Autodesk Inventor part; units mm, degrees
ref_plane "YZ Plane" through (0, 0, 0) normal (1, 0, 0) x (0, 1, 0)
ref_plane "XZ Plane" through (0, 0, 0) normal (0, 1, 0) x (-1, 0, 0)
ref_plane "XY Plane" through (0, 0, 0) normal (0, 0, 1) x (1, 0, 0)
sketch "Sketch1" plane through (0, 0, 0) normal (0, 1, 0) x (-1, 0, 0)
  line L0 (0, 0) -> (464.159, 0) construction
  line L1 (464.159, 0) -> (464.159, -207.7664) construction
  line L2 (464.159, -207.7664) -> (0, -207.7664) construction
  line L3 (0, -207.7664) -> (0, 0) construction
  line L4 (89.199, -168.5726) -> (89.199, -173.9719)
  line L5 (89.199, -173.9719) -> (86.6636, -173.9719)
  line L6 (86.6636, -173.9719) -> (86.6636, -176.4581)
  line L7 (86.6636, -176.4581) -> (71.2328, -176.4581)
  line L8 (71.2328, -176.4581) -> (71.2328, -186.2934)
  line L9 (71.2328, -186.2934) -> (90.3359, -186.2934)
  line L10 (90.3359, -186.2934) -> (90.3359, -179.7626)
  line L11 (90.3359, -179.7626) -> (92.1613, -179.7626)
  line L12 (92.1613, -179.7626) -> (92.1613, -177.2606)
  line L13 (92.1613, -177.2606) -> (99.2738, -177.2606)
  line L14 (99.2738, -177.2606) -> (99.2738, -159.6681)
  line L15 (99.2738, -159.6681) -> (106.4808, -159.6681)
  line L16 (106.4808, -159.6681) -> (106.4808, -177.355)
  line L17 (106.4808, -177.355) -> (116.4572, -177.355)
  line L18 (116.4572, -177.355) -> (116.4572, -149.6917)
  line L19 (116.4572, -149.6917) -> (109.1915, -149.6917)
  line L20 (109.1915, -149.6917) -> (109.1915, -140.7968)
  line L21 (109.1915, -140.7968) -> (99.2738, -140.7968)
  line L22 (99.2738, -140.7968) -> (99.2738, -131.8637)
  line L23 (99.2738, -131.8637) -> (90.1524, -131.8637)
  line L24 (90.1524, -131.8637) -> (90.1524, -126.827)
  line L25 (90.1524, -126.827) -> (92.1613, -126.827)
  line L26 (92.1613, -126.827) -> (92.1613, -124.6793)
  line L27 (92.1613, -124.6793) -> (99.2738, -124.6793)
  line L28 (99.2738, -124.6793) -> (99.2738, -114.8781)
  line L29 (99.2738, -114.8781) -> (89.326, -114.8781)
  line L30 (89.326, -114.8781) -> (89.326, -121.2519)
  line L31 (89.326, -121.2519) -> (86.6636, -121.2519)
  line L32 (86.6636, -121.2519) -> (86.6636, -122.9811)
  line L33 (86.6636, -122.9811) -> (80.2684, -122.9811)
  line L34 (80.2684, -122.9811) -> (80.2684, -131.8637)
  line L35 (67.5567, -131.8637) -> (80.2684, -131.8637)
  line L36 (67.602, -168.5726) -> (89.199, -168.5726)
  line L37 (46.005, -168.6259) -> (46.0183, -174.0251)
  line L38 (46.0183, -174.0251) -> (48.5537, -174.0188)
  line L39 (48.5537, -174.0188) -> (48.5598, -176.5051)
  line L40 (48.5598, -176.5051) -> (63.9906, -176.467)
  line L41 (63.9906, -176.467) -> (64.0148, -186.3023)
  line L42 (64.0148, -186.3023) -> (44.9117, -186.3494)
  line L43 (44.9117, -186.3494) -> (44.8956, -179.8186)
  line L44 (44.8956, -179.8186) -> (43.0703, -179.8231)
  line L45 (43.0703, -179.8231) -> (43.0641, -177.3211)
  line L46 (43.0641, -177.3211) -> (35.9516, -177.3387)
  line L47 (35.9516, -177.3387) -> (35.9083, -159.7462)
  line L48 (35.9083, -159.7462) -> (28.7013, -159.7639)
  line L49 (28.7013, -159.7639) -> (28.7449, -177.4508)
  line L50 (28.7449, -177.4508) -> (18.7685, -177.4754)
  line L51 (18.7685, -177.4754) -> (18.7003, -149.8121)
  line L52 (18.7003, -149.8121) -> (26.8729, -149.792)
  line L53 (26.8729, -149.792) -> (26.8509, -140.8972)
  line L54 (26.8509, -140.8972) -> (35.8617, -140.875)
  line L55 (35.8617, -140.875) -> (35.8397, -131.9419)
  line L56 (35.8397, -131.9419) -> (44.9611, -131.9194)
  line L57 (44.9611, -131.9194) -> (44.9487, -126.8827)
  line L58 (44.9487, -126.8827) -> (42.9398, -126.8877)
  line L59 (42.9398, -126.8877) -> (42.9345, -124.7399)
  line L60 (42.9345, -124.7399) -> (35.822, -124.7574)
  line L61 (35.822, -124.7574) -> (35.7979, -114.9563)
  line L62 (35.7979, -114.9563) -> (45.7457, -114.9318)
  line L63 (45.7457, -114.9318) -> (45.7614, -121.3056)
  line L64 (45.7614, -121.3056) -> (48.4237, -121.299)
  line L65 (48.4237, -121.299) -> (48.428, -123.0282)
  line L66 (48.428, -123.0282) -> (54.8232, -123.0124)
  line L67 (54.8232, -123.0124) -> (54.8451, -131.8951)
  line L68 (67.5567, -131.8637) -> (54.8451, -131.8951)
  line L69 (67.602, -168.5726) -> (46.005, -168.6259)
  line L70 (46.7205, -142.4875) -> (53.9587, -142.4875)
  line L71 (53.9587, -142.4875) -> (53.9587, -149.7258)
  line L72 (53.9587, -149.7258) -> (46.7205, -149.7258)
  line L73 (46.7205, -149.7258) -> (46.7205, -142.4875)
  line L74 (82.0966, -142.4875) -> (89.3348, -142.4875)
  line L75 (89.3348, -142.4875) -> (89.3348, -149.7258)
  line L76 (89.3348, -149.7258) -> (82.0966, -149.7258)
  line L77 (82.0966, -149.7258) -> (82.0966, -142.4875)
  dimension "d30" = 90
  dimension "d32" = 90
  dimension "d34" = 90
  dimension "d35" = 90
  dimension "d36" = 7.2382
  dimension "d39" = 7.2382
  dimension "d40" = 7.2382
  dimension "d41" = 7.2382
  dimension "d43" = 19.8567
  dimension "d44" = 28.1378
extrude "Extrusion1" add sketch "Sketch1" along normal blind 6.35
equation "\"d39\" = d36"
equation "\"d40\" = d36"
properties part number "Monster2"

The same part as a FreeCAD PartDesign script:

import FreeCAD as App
import Part
import Sketcher
from FreeCAD import Vector
Q = App.Units.Quantity


def add_polygon(sketch, points):
    """Adds a closed chain of lines whose ends are joined by coincident constraints."""
    first, n = sketch.GeometryCount, len(points)
    for a, b in zip(points, points[1:] + points[:1]):
        sketch.addGeometry(Part.LineSegment(App.Vector(*a, 0), App.Vector(*b, 0)), False)
    for i in range(n):
        sketch.addConstraint(Sketcher.Constraint("Coincident", first + i, 2, first + (i + 1) % n, 1))

doc = App.newDocument("Part")
params = doc.addObject("Spreadsheet::Sheet", "Params")
for row, (alias, value) in enumerate([
    ("pad1_length", "0.25 in"),
], start=1):
    params.set(f"A{row}", alias)
    params.set(f"B{row}", "=" + value)
    params.setAlias(f"B{row}", alias)

body = doc.addObject("PartDesign::Body", "Body")

# Sketch on XZ plane
sketch1 = body.newObject("Sketcher::SketchObject", "Sketch")
sketch1.AttachmentSupport = (doc.getObject("XZ_Plane"), [""])
sketch1.MapMode = "FlatFace"
add_polygon(sketch1, [(-67.6, -168.6), (-89.2, -168.6), (-89.2, -174), (-86.7, -174), (-86.7, -176.5), (-71.2, -176.5), (-71.2, -186.3), (-90.3, -186.3), (-90.3, -179.8), (-92.2, -179.8), (-92.2, -177.3), (-99.3, -177.3), (-99.3, -159.7), (-106.5, -159.7), (-106.5, -177.4), (-116.5, -177.4), (-116.5, -149.7), (-109.2, -149.7), (-109.2, -140.8), (-99.3, -140.8), (-99.3, -131.9), (-90.2, -131.9), (-90.2, -126.8), (-92.2, -126.8), (-92.2, -124.7), (-99.3, -124.7), (-99.3, -114.9), (-89.3, -114.9), (-89.3, -121.3), (-86.7, -121.3), (-86.7, -123), (-80.3, -123), (-80.3, -131.9), (-67.6, -131.9), (-54.8, -131.9), (-54.8, -123), (-48.4, -123), (-48.4, -121.3), (-45.8, -121.3), (-45.7, -114.9), (-35.8, -115), (-35.8, -124.8), (-42.9, -124.7), (-42.9, -126.9), (-44.9, -126.9), (-45, -131.9), (-35.8, -131.9), (-35.9, -140.9), (-26.9, -140.9), (-26.9, -149.8), (-18.7, -149.8), (-18.8, -177.5), (-28.7, -177.5), (-28.7, -159.8), (-35.9, -159.7), (-36, -177.3), (-43.1, -177.3), (-43.1, -179.8), (-44.9, -179.8), (-44.9, -186.3), (-64, -186.3), (-64, -176.5), (-48.6, -176.5), (-48.6, -174), (-46, -174), (-46, -168.6)])  # lines 0-65
add_polygon(sketch1, [(-46.7, -149.7), (-46.7, -142.5), (-54, -142.5), (-54, -149.7)])  # lines 66-69
add_polygon(sketch1, [(-82.1, -149.7), (-82.1, -142.5), (-89.3, -142.5), (-89.3, -149.7)])  # lines 70-73
sketch1.addConstraint(Sketcher.Constraint("Horizontal", 0))
sketch1.addConstraint(Sketcher.Constraint("Vertical", 1))
sketch1.addConstraint(Sketcher.Constraint("Horizontal", 2))
sketch1.addConstraint(Sketcher.Constraint("Vertical", 3))
sketch1.addConstraint(Sketcher.Constraint("Horizontal", 4))
sketch1.addConstraint(Sketcher.Constraint("Vertical", 5))
sketch1.addConstraint(Sketcher.Constraint("Horizontal", 6))
sketch1.addConstraint(Sketcher.Constraint("Vertical", 7))
sketch1.addConstraint(Sketcher.Constraint("Horizontal", 8))
sketch1.addConstraint(Sketcher.Constraint("Vertical", 9))
sketch1.addConstraint(Sketcher.Constraint("Horizontal", 10))
sketch1.addConstraint(Sketcher.Constraint("Vertical", 11))
sketch1.addConstraint(Sketcher.Constraint("Horizontal", 12))
sketch1.addConstraint(Sketcher.Constraint("Vertical", 13))
sketch1.addConstraint(Sketcher.Constraint("Horizontal", 14))
sketch1.addConstraint(Sketcher.Constraint("Vertical", 15))
sketch1.addConstraint(Sketcher.Constraint("Horizontal", 16))
sketch1.addConstraint(Sketcher.Constraint("Vertical", 17))
sketch1.addConstraint(Sketcher.Constraint("Horizontal", 18))
sketch1.addConstraint(Sketcher.Constraint("Vertical", 19))
sketch1.addConstraint(Sketcher.Constraint("Horizontal", 20))
sketch1.addConstraint(Sketcher.Constraint("Vertical", 21))
sketch1.addConstraint(Sketcher.Constraint("Horizontal", 22))
sketch1.addConstraint(Sketcher.Constraint("Vertical", 23))
sketch1.addConstraint(Sketcher.Constraint("Horizontal", 24))
sketch1.addConstraint(Sketcher.Constraint("Vertical", 25))
sketch1.addConstraint(Sketcher.Constraint("Horizontal", 26))
sketch1.addConstraint(Sketcher.Constraint("Vertical", 27))
sketch1.addConstraint(Sketcher.Constraint("Horizontal", 28))
sketch1.addConstraint(Sketcher.Constraint("Vertical", 29))
sketch1.addConstraint(Sketcher.Constraint("Horizontal", 30))
sketch1.addConstraint(Sketcher.Constraint("Vertical", 31))
sketch1.addConstraint(Sketcher.Constraint("Horizontal", 32))
sketch1.addConstraint(Sketcher.Constraint("Vertical", 66))
sketch1.addConstraint(Sketcher.Constraint("Horizontal", 67))
sketch1.addConstraint(Sketcher.Constraint("Vertical", 68))
sketch1.addConstraint(Sketcher.Constraint("Horizontal", 69))
sketch1.addConstraint(Sketcher.Constraint("Vertical", 70))
sketch1.addConstraint(Sketcher.Constraint("Horizontal", 71))
sketch1.addConstraint(Sketcher.Constraint("Vertical", 72))
sketch1.addConstraint(Sketcher.Constraint("Horizontal", 73))
sketch1.addConstraint(Sketcher.Constraint("Perpendicular", 33, 34))
sketch1.addConstraint(Sketcher.Constraint("Perpendicular", 34, 35))
sketch1.addConstraint(Sketcher.Constraint("Perpendicular", 35, 36))
sketch1.addConstraint(Sketcher.Constraint("Perpendicular", 36, 37))
sketch1.addConstraint(Sketcher.Constraint("Perpendicular", 37, 38))
sketch1.addConstraint(Sketcher.Constraint("Perpendicular", 38, 39))
sketch1.addConstraint(Sketcher.Constraint("Perpendicular", 39, 40))
sketch1.addConstraint(Sketcher.Constraint("Perpendicular", 40, 41))
sketch1.addConstraint(Sketcher.Constraint("Perpendicular", 41, 42))
sketch1.addConstraint(Sketcher.Constraint("Perpendicular", 42, 43))
sketch1.addConstraint(Sketcher.Constraint("Perpendicular", 43, 44))
sketch1.addConstraint(Sketcher.Constraint("Perpendicular", 44, 45))
sketch1.addConstraint(Sketcher.Constraint("Perpendicular", 45, 46))
sketch1.addConstraint(Sketcher.Constraint("Perpendicular", 46, 47))
sketch1.addConstraint(Sketcher.Constraint("Perpendicular", 47, 48))
sketch1.addConstraint(Sketcher.Constraint("Perpendicular", 48, 49))
sketch1.addConstraint(Sketcher.Constraint("Perpendicular", 49, 50))
sketch1.addConstraint(Sketcher.Constraint("Perpendicular", 50, 51))
sketch1.addConstraint(Sketcher.Constraint("Perpendicular", 51, 52))
sketch1.addConstraint(Sketcher.Constraint("Perpendicular", 52, 53))
sketch1.addConstraint(Sketcher.Constraint("Perpendicular", 53, 54))
sketch1.addConstraint(Sketcher.Constraint("Perpendicular", 54, 55))
sketch1.addConstraint(Sketcher.Constraint("Perpendicular", 55, 56))
sketch1.addConstraint(Sketcher.Constraint("Perpendicular", 56, 57))
sketch1.addConstraint(Sketcher.Constraint("Perpendicular", 57, 58))
sketch1.addConstraint(Sketcher.Constraint("Perpendicular", 58, 59))
sketch1.addConstraint(Sketcher.Constraint("Perpendicular", 59, 60))
sketch1.addConstraint(Sketcher.Constraint("Perpendicular", 60, 61))
sketch1.addConstraint(Sketcher.Constraint("Perpendicular", 61, 62))
sketch1.addConstraint(Sketcher.Constraint("Perpendicular", 62, 63))
sketch1.addConstraint(Sketcher.Constraint("Perpendicular", 63, 64))
sketch1.addConstraint(Sketcher.Constraint("Perpendicular", 64, 65))
sketch1.addConstraint(Sketcher.Constraint("Horizontal", 20, 2, 31, 2))
sketch1.addConstraint(Sketcher.Constraint("Horizontal", 67, 2, 70, 2))
sketch1.addConstraint(Sketcher.Constraint("Horizontal", 69, 2, 72, 2))
sketch1.addConstraint(Sketcher.Constraint("Vertical", 11, 2, 18, 2))
sketch1.addConstraint(Sketcher.Constraint("Vertical", 9, 2, 22, 2))
sketch1.addConstraint(Sketcher.Constraint("Vertical", 19, 2, 24, 2))
sketch1.addConstraint(Sketcher.Constraint("Vertical", 3, 2, 28, 2))
sketch1.addConstraint(Sketcher.Constraint("Equal", 69, 71))
sketch1.addConstraint(Sketcher.Constraint("Equal", 73, 66))
sketch1.addConstraint(Sketcher.Constraint("Equal", 41, 55))
sketch1.addConstraint(Sketcher.Constraint("DistanceX", 67, 2, 67, 1, 7.2382))
sketch1.addConstraint(Sketcher.Constraint("Angle", 38, Q("89.8589 deg")))
sketch1.addConstraint(Sketcher.Constraint("DistanceX", 4, 1, 4, 2, Q("0.6075 in")))
sketch1.addConstraint(Sketcher.Constraint("DistanceX", 6, 2, 6, 1, Q("0.7521 in")))
sketch1.addConstraint(Sketcher.Constraint("DistanceX", 20, 1, 20, 2, Q("0.3591 in")))
sketch1.addConstraint(Sketcher.Constraint("DistanceX", 22, 2, 22, 1, Q("0.0791 in")))
sketch1.addConstraint(Sketcher.Constraint("DistanceY", 9, 1, 9, 2, Q("0.0985 in")))
sketch1.addConstraint(Sketcher.Constraint("DistanceY", 15, 1, 15, 2, Q("1.0891 in")))
sketch1.addConstraint(Sketcher.Constraint("DistanceY", 17, 1, 17, 2, Q("0.3502 in")))
sketch1.addConstraint(Sketcher.Constraint("DistanceY", 19, 1, 19, 2, Q("0.3517 in")))
sketch1.addConstraint(Sketcher.Constraint("DistanceY", 21, 1, 21, 2, Q("0.1983 in")))
sketch1.addConstraint(Sketcher.Constraint("DistanceY", 31, 2, 31, 1, Q("0.3497 in")))
sketch1.addConstraint(Sketcher.Constraint("DistanceY", 34, 2, -1, 1, Q("4.843 in")))
sketch1.addConstraint(Sketcher.Constraint("DistanceX", 38, 2, -1, 1, Q("1.801 in")))
sketch1.addConstraint(Sketcher.Constraint("DistanceX", 45, 2, -1, 1, Q("1.411 in")))
sketch1.addConstraint(Sketcher.Constraint("DistanceX", 48, 2, -1, 1, Q("1.058 in")))
sketch1.addConstraint(Sketcher.Constraint("Distance", 43, Q("0.0791 in")))
sketch1.addConstraint(Sketcher.Constraint("Distance", 44, Q("0.1983 in")))
sketch1.addConstraint(Sketcher.Constraint("Distance", 45, Q("0.3591 in")))
sketch1.addConstraint(Sketcher.Constraint("Distance", 46, Q("0.3517 in")))
sketch1.addConstraint(Sketcher.Constraint("Distance", 48, Q("0.3502 in")))
sketch1.addConstraint(Sketcher.Constraint("Distance", 50, Q("1.0891 in")))
sketch1.addConstraint(Sketcher.Constraint("Distance", 56, Q("0.0985 in")))
sketch1.addConstraint(Sketcher.Constraint("Distance", 59, Q("0.7521 in")))
sketch1.addConstraint(Sketcher.Constraint("DistanceX", 0, 2, 0, 1, 21.597))
sketch1.addConstraint(Sketcher.Constraint("DistanceX", 2, 1, 2, 2, 2.5354))
sketch1.addConstraint(Sketcher.Constraint("DistanceX", 8, 2, 8, 1, 1.8254))
sketch1.addConstraint(Sketcher.Constraint("DistanceX", 12, 2, 12, 1, 7.207))
sketch1.addConstraint(Sketcher.Constraint("DistanceX", 14, 2, 14, 1, 9.9764))
sketch1.addConstraint(Sketcher.Constraint("DistanceX", 16, 1, 16, 2, 7.2657))
sketch1.addConstraint(Sketcher.Constraint("DistanceX", 26, 1, 26, 2, 9.9478))
sketch1.addConstraint(Sketcher.Constraint("DistanceX", 30, 1, 30, 2, 6.3952))
sketch1.addConstraint(Sketcher.Constraint("DistanceX", 32, 1, 32, 2, 12.7117))
sketch1.addConstraint(Sketcher.Constraint("DistanceY", 1, 2, 1, 1, 5.3993))
sketch1.addConstraint(Sketcher.Constraint("DistanceY", 3, 2, 3, 1, 2.4862))
sketch1.addConstraint(Sketcher.Constraint("DistanceY", 5, 2, 5, 1, 9.8353))
sketch1.addConstraint(Sketcher.Constraint("DistanceY", 7, 1, 7, 2, 6.5308))
sketch1.addConstraint(Sketcher.Constraint("DistanceY", 11, 1, 11, 2, 17.5925))
sketch1.addConstraint(Sketcher.Constraint("DistanceY", 13, 2, 13, 1, 17.687))
sketch1.addConstraint(Sketcher.Constraint("DistanceY", 23, 1, 23, 2, 2.1477))
sketch1.addConstraint(Sketcher.Constraint("DistanceY", 25, 1, 25, 2, 9.8012))
sketch1.addConstraint(Sketcher.Constraint("DistanceY", 27, 2, 27, 1, 6.3738))
sketch1.addConstraint(Sketcher.Constraint("DistanceX", 8, 2, -1, 1, Q("3.6284 in")))
sketch1.addConstraint(Sketcher.Constraint("DistanceY", 21, 2, -1, 1, Q("4.9932 in")))
sketch1.addConstraint(Sketcher.Constraint("DistanceX", 34, 2, -1, 1, Q("2.1584 in")))
sketch1.addConstraint(Sketcher.Constraint("DistanceY", 37, 2, -1, 1, Q("4.7758 in")))
sketch1.addConstraint(Sketcher.Constraint("DistanceY", 40, 2, -1, 1, Q("4.9117 in")))
sketch1.addConstraint(Sketcher.Constraint("DistanceX", 51, 2, -1, 1, Q("1.1317 in")))
sketch1.addConstraint(Sketcher.Constraint("DistanceY", 58, 2, -1, 1, Q("7.3366 in")))
sketch1.addConstraint(Sketcher.Constraint("DistanceX", 61, 2, -1, 1, Q("1.9118 in")))
sketch1.addConstraint(Sketcher.Constraint("DistanceX", 66, 2, -1, 1, Q("1.8394 in")))
sketch1.addConstraint(Sketcher.Constraint("Distance", 35, 6.3952))
sketch1.addConstraint(Sketcher.Constraint("Distance", 38, 6.3738))
sketch1.addConstraint(Sketcher.Constraint("Distance", 39, 9.9478))
sketch1.addConstraint(Sketcher.Constraint("Distance", 42, 2.1478))
sketch1.addConstraint(Sketcher.Constraint("Distance", 49, 8.1726))
sketch1.addConstraint(Sketcher.Constraint("Distance", 52, 17.687))
sketch1.addConstraint(Sketcher.Constraint("Distance", 53, 7.207))
sketch1.addConstraint(Sketcher.Constraint("Distance", 54, 17.5926))
sketch1.addConstraint(Sketcher.Constraint("Distance", 57, 1.8253))
sketch1.addConstraint(Sketcher.Constraint("Distance", 60, 9.8353))
sketch1.addConstraint(Sketcher.Constraint("Distance", 62, 2.4863))
sketch1.addConstraint(Sketcher.Constraint("Distance", 63, 2.5354))
sketch1.addConstraint(Sketcher.Constraint("DistanceY", 66, 2, -1, 1, 142.4875))
sketch1.addConstraint(Sketcher.Constraint("DistanceX", 70, 2, -1, 1, 82.0966))
pad1 = body.newObject("PartDesign::Pad", "Pad")
pad1.Profile = sketch1
pad1.setExpression("Length", "Params.pad1_length")
pad1.Reversed = True

doc.recompute()
